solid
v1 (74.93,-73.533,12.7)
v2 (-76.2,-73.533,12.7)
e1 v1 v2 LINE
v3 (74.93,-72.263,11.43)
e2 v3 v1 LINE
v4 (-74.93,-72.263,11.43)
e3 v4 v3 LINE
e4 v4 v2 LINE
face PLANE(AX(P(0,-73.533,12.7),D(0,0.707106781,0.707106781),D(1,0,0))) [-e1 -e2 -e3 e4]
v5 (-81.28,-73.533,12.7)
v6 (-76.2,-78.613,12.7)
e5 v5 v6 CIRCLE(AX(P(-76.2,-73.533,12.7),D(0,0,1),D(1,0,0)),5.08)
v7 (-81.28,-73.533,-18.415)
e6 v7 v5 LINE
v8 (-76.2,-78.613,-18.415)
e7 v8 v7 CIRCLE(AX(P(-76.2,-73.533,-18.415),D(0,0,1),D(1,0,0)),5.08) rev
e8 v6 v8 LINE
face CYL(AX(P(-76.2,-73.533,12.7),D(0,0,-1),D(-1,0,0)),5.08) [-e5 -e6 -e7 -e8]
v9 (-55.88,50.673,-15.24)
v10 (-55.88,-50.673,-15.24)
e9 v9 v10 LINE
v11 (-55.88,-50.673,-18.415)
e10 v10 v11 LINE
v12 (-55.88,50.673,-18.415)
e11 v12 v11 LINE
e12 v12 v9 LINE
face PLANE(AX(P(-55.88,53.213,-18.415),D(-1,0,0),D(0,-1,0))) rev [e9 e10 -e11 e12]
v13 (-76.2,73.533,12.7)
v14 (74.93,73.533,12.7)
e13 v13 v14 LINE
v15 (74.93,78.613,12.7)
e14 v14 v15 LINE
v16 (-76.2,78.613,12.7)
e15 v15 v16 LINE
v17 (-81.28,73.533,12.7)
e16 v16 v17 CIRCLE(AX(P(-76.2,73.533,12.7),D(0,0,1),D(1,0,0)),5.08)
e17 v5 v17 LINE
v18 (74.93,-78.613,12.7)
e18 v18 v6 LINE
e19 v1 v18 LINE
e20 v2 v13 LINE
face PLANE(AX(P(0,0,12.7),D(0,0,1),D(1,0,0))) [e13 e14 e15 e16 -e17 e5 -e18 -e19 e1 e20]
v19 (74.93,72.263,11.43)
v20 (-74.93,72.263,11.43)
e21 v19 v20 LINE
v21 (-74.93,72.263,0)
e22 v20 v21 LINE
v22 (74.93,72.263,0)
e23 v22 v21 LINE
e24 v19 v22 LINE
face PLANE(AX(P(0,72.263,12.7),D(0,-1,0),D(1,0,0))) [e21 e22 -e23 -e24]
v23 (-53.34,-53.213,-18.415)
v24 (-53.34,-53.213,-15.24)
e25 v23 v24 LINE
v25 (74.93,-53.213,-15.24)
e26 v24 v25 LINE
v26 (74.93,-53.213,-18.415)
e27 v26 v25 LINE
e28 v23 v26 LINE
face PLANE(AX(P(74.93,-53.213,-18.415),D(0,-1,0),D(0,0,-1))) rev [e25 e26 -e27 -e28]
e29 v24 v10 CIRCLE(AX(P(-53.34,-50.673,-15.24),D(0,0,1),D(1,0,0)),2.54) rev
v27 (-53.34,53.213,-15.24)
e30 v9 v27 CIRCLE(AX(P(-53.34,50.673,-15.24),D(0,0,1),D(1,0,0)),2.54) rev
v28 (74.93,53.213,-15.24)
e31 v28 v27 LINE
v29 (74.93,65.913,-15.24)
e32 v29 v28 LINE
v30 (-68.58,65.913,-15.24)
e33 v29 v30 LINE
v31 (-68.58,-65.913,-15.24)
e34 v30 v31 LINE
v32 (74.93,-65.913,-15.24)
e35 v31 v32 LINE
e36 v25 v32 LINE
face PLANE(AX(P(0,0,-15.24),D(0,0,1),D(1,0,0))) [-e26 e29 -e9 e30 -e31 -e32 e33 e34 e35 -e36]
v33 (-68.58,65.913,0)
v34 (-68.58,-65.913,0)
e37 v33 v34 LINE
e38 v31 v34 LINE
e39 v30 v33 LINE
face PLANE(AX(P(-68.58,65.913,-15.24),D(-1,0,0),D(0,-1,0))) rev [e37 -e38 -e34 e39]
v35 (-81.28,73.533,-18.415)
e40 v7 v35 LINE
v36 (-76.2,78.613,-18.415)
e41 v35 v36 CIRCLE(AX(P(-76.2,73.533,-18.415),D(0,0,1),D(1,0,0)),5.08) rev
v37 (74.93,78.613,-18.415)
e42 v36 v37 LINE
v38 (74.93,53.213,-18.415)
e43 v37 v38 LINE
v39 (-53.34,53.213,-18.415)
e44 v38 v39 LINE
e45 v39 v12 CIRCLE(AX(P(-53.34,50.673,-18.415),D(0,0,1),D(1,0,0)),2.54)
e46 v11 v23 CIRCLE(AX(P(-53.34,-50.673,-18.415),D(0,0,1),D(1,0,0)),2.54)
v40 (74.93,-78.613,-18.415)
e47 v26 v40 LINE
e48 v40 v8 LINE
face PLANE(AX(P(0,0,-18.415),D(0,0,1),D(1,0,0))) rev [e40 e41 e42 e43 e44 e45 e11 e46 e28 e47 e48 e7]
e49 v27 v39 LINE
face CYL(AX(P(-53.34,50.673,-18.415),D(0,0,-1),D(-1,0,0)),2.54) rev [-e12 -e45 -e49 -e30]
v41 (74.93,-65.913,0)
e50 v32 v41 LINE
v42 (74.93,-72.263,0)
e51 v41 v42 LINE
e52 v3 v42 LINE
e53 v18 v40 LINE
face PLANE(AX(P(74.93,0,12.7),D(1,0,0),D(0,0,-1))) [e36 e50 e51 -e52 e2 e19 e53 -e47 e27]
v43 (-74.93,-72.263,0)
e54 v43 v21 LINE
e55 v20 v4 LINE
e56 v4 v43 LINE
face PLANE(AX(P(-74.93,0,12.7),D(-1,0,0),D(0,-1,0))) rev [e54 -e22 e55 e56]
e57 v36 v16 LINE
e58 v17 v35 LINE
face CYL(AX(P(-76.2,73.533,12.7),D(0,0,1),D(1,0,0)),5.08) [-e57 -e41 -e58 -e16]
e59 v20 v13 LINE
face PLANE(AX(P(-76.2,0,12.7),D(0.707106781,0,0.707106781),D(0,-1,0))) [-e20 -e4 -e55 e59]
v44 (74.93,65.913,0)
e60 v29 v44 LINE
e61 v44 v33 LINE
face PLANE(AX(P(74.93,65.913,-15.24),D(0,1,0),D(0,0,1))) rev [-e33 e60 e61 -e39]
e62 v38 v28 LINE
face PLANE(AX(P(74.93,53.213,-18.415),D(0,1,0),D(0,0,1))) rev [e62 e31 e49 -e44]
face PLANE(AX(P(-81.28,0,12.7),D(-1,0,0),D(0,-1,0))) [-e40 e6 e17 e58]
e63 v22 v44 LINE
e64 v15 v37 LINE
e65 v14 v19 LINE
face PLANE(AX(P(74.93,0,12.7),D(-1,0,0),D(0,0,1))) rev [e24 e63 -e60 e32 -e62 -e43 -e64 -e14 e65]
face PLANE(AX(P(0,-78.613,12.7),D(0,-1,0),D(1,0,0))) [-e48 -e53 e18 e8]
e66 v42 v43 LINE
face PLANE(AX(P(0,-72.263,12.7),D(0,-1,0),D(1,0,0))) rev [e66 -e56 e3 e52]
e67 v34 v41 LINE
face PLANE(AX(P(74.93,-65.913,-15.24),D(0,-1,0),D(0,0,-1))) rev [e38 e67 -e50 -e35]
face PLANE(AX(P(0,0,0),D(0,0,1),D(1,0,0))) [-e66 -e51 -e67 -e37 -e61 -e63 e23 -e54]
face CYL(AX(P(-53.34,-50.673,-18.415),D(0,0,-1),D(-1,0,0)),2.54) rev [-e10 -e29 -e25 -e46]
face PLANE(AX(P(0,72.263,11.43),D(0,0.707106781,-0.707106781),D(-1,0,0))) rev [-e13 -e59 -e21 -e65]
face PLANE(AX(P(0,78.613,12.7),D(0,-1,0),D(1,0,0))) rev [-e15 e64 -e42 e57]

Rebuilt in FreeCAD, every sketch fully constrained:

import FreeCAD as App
import Part
import Sketcher
Q = App.Units.Quantity


def edges_at(feature, points):
    """Names of the edges that pass closest to the given points."""
    edges = feature.Shape.Edges
    near = lambda p: min(range(len(edges)), key=lambda i: edges[i].distToShape(Part.Vertex(*p))[0])
    return sorted({f"Edge{near(p) + 1}" for p in points})


def add_polygon(sketch, points):
    """Adds a closed chain of lines whose ends are joined by coincident constraints."""
    first, n = sketch.GeometryCount, len(points)
    for a, b in zip(points, points[1:] + points[:1]):
        sketch.addGeometry(Part.LineSegment(App.Vector(*a, 0), App.Vector(*b, 0)), False)
    for i in range(n):
        sketch.addConstraint(Sketcher.Constraint("Coincident", first + i, 2, first + (i + 1) % n, 1))

doc = App.newDocument("Part")
body = doc.addObject("PartDesign::Body", "Body")

sketch1 = body.newObject("Sketcher::SketchObject", "Sketch")
sketch1.AttachmentSupport = (doc.getObject("XY_Plane"), [""])
sketch1.MapMode = "FlatFace"
add_polygon(sketch1, [(75, -79), (75, -72), (-75, -72), (-75, 72), (75, 72), (75, 79), (-81, 79), (-81, -79)])
sketch1.addConstraint(Sketcher.Constraint("Vertical", 0))
sketch1.addConstraint(Sketcher.Constraint("Horizontal", 1))
sketch1.addConstraint(Sketcher.Constraint("Vertical", 2))
sketch1.addConstraint(Sketcher.Constraint("Horizontal", 3))
sketch1.addConstraint(Sketcher.Constraint("Vertical", 4))
sketch1.addConstraint(Sketcher.Constraint("Horizontal", 5))
sketch1.addConstraint(Sketcher.Constraint("Vertical", 6))
sketch1.addConstraint(Sketcher.Constraint("Horizontal", 7))
sketch1.addConstraint(Sketcher.Constraint("Symmetric", 0, 2, 2, 2, -1, 1))
sketch1.addConstraint(Sketcher.Constraint("Symmetric", 4, 2, 7, 2, -1))
sketch1.addConstraint(Sketcher.Constraint("DistanceX", 1, 2, 1, 1, Q("5.9 in")))
sketch1.addConstraint(Sketcher.Constraint("DistanceX", 5, 2, 5, 1, Q("6.15 in")))
sketch1.addConstraint(Sketcher.Constraint("DistanceY", 0, 1, 0, 2, Q("0.25 in")))
sketch1.addConstraint(Sketcher.Constraint("DistanceY", 2, 1, 2, 2, Q("5.69 in")))
pad1 = body.newObject("PartDesign::Pad", "Pad")
pad1.Profile = sketch1
pad1.Length = Q("0.5 in")

sketch2 = body.newObject("Sketcher::SketchObject", "Sketch001")
sketch2.AttachmentSupport = (doc.getObject("XY_Plane"), [""])
sketch2.MapMode = "FlatFace"
add_polygon(sketch2, [(75, -66), (75, -79), (-81, -79), (-81, 79), (75, 79), (75, 66), (-69, 66), (-69, -66)])
sketch2.addConstraint(Sketcher.Constraint("Vertical", 0))
sketch2.addConstraint(Sketcher.Constraint("Horizontal", 1))
sketch2.addConstraint(Sketcher.Constraint("Vertical", 2))
sketch2.addConstraint(Sketcher.Constraint("Horizontal", 3))
sketch2.addConstraint(Sketcher.Constraint("Vertical", 4))
sketch2.addConstraint(Sketcher.Constraint("Horizontal", 5))
sketch2.addConstraint(Sketcher.Constraint("Vertical", 6))
sketch2.addConstraint(Sketcher.Constraint("Horizontal", 7))
sketch2.addConstraint(Sketcher.Constraint("Symmetric", 0, 2, 3, 2, -1))
sketch2.addConstraint(Sketcher.Constraint("Equal", 0, 4))
sketch2.addConstraint(Sketcher.Constraint("DistanceY", 0, 2, 0, 1, Q("0.5 in")))
sketch2.addConstraint(Sketcher.Constraint("DistanceX", 1, 2, 1, 1, Q("6.15 in")))
sketch2.addConstraint(Sketcher.Constraint("DistanceX", 5, 2, 5, 1, Q("5.65 in")))
sketch2.addConstraint(Sketcher.Constraint("DistanceY", 2, 1, 2, 2, Q("6.19 in")))
sketch2.addConstraint(Sketcher.Constraint("DistanceX", 1, 2, -1, 1, Q("3.2 in")))
pad2 = body.newObject("PartDesign::Pad", "Pad001")
pad2.Profile = sketch2
pad2.Length = Q("0.6 in")
pad2.Reversed = True

sketch3 = body.newObject("Sketcher::SketchObject", "Sketch002")
sketch3.AttachmentSupport = (doc.getObject("XY_Plane"), [""])
sketch3.MapMode = "FlatFace"
sketch3.AttachmentOffset = App.Placement(App.Vector(0, 0, -0.6 * 25.4), App.Rotation())
add_polygon(sketch3, [(75, -53), (75, -79), (-81, -79), (-81, 79), (75, 79), (75, 53), (-56, 53), (-56, -53)])
sketch3.addConstraint(Sketcher.Constraint("Vertical", 0))
sketch3.addConstraint(Sketcher.Constraint("Horizontal", 1))
sketch3.addConstraint(Sketcher.Constraint("Vertical", 2))
sketch3.addConstraint(Sketcher.Constraint("Horizontal", 3))
sketch3.addConstraint(Sketcher.Constraint("Vertical", 4))
sketch3.addConstraint(Sketcher.Constraint("Horizontal", 5))
sketch3.addConstraint(Sketcher.Constraint("Vertical", 6))
sketch3.addConstraint(Sketcher.Constraint("Horizontal", 7))
sketch3.addConstraint(Sketcher.Constraint("Symmetric", 0, 2, 3, 2, -1))
sketch3.addConstraint(Sketcher.Constraint("Equal", 0, 4))
sketch3.addConstraint(Sketcher.Constraint("DistanceY", 0, 2, 0, 1, Q("1 in")))
sketch3.addConstraint(Sketcher.Constraint("DistanceX", 2, 2, 5, 2, Q("1 in")))
sketch3.addConstraint(Sketcher.Constraint("DistanceX", 1, 2, 1, 1, Q("6.15 in")))
sketch3.addConstraint(Sketcher.Constraint("DistanceY", 2, 1, 2, 2, Q("6.19 in")))
sketch3.addConstraint(Sketcher.Constraint("DistanceX", 1, 2, -1, 1, Q("3.2 in")))
pad3 = body.newObject("PartDesign::Pad", "Pad002")
pad3.Profile = sketch3
pad3.Length = Q("0.125 in")
pad3.Reversed = True
doc.recompute()

fillet = body.newObject("PartDesign::Fillet", "Fillet")
fillet.Base = (pad3, edges_at(pad3, [(-81.28, -78.613, -2.857), (-81.28, 78.613, -2.857)]))
fillet.Radius = Q("0.2 in")
doc.recompute()

fillet2 = body.newObject("PartDesign::Fillet", "Fillet001")
fillet2.Base = (fillet, edges_at(fillet, [(-55.88, 53.213, -16.828), (-55.88, -53.213, -16.828)]))
fillet2.Radius = Q("0.1 in")
doc.recompute()

chamfer = body.newObject("PartDesign::Chamfer", "Chamfer")
chamfer.Base = (fillet2, edges_at(fillet2, [(0, -72.263, 12.7), (-74.93, 0, 12.7), (0, 72.263, 12.7)]))
chamfer.Size = Q("0.05 in")

doc.recompute()
